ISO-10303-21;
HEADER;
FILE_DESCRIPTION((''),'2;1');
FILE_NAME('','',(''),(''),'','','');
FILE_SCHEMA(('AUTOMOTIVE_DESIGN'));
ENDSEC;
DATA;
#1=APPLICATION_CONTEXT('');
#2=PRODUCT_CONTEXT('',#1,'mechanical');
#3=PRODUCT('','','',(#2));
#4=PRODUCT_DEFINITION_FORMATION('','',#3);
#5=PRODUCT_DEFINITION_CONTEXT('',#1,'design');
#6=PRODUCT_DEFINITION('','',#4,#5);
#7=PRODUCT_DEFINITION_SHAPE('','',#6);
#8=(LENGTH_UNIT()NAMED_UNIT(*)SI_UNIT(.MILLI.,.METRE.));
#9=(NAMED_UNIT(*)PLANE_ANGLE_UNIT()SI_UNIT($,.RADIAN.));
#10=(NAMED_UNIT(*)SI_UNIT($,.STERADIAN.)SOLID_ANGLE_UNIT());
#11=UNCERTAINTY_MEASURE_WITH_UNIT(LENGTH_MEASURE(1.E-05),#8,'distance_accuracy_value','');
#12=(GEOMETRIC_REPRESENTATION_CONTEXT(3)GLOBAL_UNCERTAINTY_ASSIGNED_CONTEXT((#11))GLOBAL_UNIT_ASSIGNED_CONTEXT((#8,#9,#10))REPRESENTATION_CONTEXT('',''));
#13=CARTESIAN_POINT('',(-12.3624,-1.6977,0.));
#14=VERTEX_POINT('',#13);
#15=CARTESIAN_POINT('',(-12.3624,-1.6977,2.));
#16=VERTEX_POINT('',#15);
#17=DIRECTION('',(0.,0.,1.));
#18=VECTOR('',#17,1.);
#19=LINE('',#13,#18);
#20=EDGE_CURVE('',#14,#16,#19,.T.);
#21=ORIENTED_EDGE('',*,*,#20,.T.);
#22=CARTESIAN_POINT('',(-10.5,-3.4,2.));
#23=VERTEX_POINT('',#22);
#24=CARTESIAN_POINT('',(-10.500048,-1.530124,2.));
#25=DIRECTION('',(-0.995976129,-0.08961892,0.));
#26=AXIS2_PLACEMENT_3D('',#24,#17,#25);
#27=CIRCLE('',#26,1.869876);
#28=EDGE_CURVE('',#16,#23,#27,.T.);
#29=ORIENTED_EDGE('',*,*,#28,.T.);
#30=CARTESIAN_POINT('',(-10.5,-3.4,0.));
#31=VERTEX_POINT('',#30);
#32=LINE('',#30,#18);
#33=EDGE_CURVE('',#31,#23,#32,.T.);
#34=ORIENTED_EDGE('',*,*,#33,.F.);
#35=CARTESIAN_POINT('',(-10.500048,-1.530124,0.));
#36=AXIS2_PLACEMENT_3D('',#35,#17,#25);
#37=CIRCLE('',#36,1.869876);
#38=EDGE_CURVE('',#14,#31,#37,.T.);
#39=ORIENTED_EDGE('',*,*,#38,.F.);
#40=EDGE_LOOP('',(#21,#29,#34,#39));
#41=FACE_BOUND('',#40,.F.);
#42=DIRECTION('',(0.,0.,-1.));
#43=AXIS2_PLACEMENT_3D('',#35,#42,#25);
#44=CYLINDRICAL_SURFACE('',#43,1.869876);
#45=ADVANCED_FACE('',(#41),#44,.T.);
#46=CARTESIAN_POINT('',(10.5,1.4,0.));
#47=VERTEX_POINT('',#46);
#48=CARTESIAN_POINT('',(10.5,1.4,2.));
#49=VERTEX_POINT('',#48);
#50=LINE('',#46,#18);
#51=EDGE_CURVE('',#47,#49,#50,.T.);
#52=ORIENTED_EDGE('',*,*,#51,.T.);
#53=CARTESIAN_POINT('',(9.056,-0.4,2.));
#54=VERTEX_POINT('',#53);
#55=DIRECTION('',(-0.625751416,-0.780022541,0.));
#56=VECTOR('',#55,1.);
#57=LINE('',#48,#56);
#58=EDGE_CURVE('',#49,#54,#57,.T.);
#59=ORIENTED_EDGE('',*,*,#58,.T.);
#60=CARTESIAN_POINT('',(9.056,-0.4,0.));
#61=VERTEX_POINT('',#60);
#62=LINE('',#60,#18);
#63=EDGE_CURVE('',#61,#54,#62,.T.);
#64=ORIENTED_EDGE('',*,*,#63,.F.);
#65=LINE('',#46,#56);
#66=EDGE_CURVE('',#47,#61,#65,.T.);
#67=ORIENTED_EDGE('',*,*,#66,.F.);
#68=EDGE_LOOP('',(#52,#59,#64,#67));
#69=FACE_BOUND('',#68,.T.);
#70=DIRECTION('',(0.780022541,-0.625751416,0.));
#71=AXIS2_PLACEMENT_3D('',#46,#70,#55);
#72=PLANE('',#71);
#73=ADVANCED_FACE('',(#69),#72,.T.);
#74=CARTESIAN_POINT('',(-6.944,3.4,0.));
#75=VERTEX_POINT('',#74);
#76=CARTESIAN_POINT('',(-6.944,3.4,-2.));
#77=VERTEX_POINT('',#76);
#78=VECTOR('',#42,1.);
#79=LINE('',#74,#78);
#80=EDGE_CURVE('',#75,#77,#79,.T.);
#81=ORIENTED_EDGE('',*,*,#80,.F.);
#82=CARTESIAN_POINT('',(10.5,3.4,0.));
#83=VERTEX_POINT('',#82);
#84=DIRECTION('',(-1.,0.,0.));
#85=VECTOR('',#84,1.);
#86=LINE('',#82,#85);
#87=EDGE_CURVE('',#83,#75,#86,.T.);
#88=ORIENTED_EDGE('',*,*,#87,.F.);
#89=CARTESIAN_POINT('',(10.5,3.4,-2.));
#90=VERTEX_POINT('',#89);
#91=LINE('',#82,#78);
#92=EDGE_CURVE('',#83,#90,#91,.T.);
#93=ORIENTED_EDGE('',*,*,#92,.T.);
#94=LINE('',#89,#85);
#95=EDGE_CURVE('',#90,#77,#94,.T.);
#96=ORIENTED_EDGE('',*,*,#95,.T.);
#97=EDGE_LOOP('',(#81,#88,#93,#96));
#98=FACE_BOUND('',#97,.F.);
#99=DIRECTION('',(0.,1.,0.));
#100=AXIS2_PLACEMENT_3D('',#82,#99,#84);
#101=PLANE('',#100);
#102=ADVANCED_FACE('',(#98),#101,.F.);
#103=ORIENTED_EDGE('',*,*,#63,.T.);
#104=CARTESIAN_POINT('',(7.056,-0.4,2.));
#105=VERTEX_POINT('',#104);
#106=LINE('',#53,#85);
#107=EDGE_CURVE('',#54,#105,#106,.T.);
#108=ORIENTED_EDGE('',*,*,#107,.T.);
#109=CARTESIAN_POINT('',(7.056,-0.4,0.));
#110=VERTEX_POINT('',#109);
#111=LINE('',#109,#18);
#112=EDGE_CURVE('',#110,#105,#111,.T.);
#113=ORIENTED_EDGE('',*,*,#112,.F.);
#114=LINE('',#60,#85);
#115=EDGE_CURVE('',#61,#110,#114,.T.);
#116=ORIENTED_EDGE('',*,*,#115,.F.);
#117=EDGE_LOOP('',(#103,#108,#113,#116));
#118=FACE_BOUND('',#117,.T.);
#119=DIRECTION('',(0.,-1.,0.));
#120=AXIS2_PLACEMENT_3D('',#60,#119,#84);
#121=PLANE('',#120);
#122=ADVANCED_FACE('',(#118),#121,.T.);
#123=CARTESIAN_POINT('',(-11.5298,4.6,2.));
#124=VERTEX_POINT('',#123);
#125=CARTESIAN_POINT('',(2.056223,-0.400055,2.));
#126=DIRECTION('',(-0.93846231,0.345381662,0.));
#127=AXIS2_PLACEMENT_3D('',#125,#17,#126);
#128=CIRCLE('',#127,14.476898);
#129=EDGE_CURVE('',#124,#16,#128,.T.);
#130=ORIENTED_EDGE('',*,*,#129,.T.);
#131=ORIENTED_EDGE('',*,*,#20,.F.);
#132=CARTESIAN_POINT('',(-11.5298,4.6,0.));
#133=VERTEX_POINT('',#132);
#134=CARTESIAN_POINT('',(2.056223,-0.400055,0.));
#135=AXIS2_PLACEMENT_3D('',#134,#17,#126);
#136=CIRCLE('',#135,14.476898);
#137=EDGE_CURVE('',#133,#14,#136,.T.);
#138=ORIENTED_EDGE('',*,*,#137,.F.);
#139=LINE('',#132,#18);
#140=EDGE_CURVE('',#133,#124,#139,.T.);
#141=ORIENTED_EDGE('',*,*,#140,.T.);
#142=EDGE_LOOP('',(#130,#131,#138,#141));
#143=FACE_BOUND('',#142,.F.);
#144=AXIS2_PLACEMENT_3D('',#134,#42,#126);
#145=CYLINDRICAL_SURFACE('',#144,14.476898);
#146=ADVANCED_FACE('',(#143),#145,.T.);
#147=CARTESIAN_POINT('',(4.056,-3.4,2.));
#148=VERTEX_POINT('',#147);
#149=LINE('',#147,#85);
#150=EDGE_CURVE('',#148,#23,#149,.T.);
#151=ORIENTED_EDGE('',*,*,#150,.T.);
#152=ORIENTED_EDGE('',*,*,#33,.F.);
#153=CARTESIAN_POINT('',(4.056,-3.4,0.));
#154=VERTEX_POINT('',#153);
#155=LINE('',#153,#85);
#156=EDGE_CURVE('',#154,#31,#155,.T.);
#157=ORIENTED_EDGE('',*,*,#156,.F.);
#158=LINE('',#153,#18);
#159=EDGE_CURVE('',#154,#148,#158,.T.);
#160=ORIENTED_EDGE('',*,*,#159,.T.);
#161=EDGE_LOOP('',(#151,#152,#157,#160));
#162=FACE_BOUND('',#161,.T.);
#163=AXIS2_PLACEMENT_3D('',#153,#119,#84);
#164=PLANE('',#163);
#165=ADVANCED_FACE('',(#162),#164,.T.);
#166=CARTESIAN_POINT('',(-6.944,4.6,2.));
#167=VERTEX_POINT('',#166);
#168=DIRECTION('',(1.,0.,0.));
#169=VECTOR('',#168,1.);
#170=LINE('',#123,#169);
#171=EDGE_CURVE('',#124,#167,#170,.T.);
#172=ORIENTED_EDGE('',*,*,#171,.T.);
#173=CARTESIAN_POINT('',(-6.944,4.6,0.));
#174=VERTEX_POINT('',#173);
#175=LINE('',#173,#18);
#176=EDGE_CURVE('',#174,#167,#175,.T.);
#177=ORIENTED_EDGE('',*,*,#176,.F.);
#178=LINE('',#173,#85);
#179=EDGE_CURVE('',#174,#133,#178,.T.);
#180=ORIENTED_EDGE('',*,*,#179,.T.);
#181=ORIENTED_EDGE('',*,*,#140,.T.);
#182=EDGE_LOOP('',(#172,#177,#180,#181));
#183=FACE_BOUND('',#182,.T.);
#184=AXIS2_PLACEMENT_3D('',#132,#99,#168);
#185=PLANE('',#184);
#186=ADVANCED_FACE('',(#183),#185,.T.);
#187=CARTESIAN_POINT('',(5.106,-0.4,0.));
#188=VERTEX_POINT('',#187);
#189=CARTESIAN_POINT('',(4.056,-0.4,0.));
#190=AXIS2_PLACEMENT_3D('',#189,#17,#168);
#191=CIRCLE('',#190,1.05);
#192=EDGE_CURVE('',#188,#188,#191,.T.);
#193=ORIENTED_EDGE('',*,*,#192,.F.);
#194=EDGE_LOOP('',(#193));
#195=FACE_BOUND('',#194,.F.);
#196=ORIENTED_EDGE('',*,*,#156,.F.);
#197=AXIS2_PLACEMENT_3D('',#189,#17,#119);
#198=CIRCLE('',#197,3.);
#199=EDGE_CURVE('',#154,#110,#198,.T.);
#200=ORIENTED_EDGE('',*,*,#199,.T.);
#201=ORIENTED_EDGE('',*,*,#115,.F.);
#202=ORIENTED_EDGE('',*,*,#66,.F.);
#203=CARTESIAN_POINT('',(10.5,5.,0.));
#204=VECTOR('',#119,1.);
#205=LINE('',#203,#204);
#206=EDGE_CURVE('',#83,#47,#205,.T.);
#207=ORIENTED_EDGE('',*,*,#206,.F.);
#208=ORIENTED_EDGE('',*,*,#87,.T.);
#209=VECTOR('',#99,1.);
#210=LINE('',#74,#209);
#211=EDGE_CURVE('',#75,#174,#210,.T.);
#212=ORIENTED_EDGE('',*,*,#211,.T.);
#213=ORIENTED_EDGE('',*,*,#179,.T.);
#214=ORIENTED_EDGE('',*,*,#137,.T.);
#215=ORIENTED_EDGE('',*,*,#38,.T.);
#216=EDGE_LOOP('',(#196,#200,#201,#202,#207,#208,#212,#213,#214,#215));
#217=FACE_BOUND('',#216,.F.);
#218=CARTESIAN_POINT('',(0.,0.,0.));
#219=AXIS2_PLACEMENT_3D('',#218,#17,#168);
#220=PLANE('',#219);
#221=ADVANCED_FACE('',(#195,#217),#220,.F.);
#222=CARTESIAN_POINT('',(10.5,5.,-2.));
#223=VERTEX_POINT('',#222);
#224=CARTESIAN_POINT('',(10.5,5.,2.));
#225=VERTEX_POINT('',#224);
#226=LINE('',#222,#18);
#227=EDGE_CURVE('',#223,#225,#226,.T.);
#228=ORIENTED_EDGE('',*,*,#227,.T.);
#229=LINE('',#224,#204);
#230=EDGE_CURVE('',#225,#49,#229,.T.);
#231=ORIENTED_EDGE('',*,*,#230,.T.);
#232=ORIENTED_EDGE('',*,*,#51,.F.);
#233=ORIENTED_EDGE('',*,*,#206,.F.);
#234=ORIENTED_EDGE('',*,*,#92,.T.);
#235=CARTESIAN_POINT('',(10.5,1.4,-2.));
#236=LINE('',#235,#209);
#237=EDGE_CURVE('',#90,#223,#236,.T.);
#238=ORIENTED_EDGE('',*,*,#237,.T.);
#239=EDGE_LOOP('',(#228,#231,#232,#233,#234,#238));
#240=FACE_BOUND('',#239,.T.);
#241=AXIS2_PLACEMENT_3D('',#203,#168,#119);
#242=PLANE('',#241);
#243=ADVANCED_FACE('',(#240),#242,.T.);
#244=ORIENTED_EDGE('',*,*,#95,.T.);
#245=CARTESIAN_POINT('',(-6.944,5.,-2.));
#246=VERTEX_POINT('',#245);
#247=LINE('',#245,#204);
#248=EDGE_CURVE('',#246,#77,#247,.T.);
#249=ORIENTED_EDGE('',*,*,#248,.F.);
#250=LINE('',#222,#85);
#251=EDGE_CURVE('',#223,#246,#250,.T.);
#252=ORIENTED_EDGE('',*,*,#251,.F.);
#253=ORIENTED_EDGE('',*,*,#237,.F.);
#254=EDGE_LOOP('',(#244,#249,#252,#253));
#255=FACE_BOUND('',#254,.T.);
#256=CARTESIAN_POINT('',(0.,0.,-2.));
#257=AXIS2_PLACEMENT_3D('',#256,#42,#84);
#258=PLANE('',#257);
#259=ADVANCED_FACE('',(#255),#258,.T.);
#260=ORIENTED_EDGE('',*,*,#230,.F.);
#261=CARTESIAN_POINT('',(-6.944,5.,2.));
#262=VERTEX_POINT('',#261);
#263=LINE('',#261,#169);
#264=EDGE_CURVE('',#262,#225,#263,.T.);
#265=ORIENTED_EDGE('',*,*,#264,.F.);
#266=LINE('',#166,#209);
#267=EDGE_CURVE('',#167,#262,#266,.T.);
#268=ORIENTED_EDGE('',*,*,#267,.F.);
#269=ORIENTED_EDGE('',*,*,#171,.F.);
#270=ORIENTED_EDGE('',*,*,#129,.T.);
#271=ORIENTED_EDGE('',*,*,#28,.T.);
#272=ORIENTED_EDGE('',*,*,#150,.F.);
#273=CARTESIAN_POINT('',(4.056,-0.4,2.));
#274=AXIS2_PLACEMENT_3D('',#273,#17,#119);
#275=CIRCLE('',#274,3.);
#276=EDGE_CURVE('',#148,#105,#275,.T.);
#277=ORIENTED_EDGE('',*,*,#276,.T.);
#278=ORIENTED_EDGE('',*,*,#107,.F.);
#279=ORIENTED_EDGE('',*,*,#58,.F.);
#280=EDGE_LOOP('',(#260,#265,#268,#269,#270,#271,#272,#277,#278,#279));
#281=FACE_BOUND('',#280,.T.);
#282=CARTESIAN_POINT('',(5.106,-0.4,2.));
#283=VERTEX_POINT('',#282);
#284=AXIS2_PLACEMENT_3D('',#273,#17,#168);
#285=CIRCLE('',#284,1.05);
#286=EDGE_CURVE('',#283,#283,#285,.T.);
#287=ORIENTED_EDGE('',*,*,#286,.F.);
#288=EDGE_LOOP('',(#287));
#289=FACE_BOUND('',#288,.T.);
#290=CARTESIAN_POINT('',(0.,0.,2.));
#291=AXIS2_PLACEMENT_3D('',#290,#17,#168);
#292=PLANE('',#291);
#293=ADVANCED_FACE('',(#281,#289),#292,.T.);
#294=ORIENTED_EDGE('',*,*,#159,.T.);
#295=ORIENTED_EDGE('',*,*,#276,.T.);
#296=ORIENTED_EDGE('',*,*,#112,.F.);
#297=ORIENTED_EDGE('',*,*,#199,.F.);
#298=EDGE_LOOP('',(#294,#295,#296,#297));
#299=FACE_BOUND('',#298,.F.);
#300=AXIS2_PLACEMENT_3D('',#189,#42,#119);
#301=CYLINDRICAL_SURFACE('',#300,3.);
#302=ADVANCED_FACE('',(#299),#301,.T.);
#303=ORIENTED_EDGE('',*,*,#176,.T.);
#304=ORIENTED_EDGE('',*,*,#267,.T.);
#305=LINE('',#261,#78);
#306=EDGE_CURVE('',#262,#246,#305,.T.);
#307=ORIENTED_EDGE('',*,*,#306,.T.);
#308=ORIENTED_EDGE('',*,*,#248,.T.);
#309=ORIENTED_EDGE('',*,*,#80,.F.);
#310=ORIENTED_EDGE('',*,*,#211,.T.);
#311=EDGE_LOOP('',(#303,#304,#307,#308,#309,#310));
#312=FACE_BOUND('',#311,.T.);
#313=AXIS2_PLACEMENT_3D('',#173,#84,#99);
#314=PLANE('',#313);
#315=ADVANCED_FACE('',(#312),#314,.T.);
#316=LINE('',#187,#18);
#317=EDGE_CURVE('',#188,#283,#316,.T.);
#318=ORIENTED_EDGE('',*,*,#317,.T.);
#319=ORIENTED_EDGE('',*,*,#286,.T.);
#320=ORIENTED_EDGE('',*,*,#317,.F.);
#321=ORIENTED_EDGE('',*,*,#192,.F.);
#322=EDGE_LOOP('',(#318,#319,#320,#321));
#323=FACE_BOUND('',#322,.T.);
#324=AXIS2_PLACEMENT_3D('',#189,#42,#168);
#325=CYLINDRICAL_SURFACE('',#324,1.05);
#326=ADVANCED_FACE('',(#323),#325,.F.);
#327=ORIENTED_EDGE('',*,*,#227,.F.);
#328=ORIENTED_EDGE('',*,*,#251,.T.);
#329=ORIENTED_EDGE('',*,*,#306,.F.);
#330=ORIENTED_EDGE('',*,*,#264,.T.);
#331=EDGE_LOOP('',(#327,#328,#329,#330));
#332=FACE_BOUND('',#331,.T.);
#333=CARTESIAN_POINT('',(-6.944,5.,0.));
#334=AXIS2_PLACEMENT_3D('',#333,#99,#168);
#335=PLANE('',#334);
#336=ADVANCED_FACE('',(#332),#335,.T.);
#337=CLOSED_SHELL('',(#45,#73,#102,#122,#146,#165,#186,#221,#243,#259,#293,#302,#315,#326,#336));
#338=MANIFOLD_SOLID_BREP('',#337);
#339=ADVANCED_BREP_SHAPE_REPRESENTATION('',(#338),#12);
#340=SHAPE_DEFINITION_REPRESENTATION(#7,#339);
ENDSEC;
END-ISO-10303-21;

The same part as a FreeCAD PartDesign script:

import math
import FreeCAD as App
import Part
import Sketcher
from FreeCAD import Vector

doc = App.newDocument("Part")
params = doc.addObject("Spreadsheet::Sheet", "Params")
for row, (alias, value) in enumerate([
    ("sketch1_width", "2 mm"),
    ("sketch1_radius", "3 mm"),
    ("sketch1_diameter", "2.1 mm"),
    ("sketch1_radius2", "1.87 mm"),
    ("sketch1_height", "3.6 mm"),
    ("pad1_length", "2 mm"),
    ("sketch2_height", "1.6 mm"),
    ("pad2_length", "2 mm"),
], start=1):
    params.set(f"A{row}", alias)
    params.set(f"B{row}", "=" + value)
    params.setAlias(f"B{row}", alias)

body = doc.addObject("PartDesign::Body", "Body")

sketch1 = body.newObject("Sketcher::SketchObject", "Sketch")
sketch1.AttachmentSupport = (doc.getObject("XY_Plane"), [""])
sketch1.MapMode = "FlatFace"
sketch1.addGeometry([
    Part.LineSegment(Vector(-6.94, 4.6, 0), Vector(-11.53, 4.6, 0)),
    Part.ArcOfCircle(Part.Circle(Vector(2.06, -0.4, 0), Vector(0, 0, 1), 14.48), math.radians(160), math.radians(185)),
    Part.ArcOfCircle(Part.Circle(Vector(-10.5, -1.53, 0), Vector(0, 0, 1), 1.87), math.radians(-175), math.radians(-90)),
    Part.LineSegment(Vector(-10.5, -3.4, 0), Vector(4.06, -3.4, 0)),
    Part.ArcOfCircle(Part.Circle(Vector(4.06, -0.4, 0), Vector(0, 0, 1), 3), math.radians(-90), math.radians(0)),
    Part.LineSegment(Vector(7.06, -0.4, 0), Vector(9.06, -0.4, 0)),
    Part.LineSegment(Vector(9.06, -0.4, 0), Vector(10.5, 1.4, 0)),
    Part.LineSegment(Vector(10.5, 1.4, 0), Vector(10.5, 5, 0)),
    Part.LineSegment(Vector(10.5, 5, 0), Vector(-6.94, 5, 0)),
    Part.LineSegment(Vector(-6.94, 5, 0), Vector(-6.94, 4.6, 0)),
    Part.Circle(Vector(4.06, -0.4, 0), Vector(0, 0, 1), 1.05),
], False)
sketch1.addConstraint([
    Sketcher.Constraint("Coincident", 0, 2, 1, 1),
    Sketcher.Constraint("Tangent", 1, 2, 2, 1),
    Sketcher.Constraint("Tangent", 2, 2, 3, 1),
    Sketcher.Constraint("Tangent", 3, 2, 4, 1),
    Sketcher.Constraint("Coincident", 4, 2, 5, 1),
    Sketcher.Constraint("Coincident", 5, 2, 6, 1),
    Sketcher.Constraint("Coincident", 6, 2, 7, 1),
    Sketcher.Constraint("Coincident", 7, 2, 8, 1),
    Sketcher.Constraint("Coincident", 8, 2, 9, 1),
    Sketcher.Constraint("Coincident", 9, 2, 0, 1),
    Sketcher.Constraint("Horizontal", 0),
    Sketcher.Constraint("Horizontal", 3),
    Sketcher.Constraint("Horizontal", 5),
    Sketcher.Constraint("Vertical", 7),
    Sketcher.Constraint("Horizontal", 8),
    Sketcher.Constraint("Vertical", 9),
    Sketcher.Constraint("Coincident", 10, 3, 4, 3),
    Sketcher.Constraint("Horizontal", 1, 3, 4, 3),
    Sketcher.Constraint("Horizontal", 10, 3, 4, 2),
    Sketcher.Constraint("DistanceX", 5, 1, 5, 2, 2.0),
    Sketcher.Constraint("Radius", 4, 3.0),
    Sketcher.Constraint("DistanceX", 1, 3, 4, 3, 2.0),
    Sketcher.Constraint("Diameter", 10, 2.1),
    Sketcher.Constraint("Radius", 2, 1.87),
    Sketcher.Constraint("DistanceY", 7, 1, 7, 2, 3.6),
    Sketcher.Constraint("DistanceY", 9, 2, 9, 1, 0.4),
    Sketcher.Constraint("DistanceY", -1, 1, 7, 2, 5.0),
    Sketcher.Constraint("DistanceY", 1, 3, 0, 2, 5.0),
    Sketcher.Constraint("DistanceX", 8, 2, 1, 3, 9.0),
    Sketcher.Constraint("DistanceX", 2, 3, -1, 1, 10.5),
    Sketcher.Constraint("DistanceX", -1, 1, 6, 2, 10.5),
    Sketcher.Constraint("Radius", 1, 14.4767),
])
sketch1.setExpression("Constraints[19]", "Params.sketch1_width")
sketch1.setExpression("Constraints[20]", "Params.sketch1_radius")
sketch1.setExpression("Constraints[22]", "Params.sketch1_diameter")
sketch1.setExpression("Constraints[23]", "Params.sketch1_radius2")
sketch1.setExpression("Constraints[24]", "Params.sketch1_height")
pad1 = body.newObject("PartDesign::Pad", "Pad")
pad1.Profile = sketch1
pad1.setExpression("Length", "Params.pad1_length")

sketch2 = body.newObject("Sketcher::SketchObject", "Sketch001")
sketch2.AttachmentSupport = (doc.getObject("XY_Plane"), [""])
sketch2.MapMode = "FlatFace"
sketch2.addGeometry([
    Part.LineSegment(Vector(-6.9, 3.4, 0), Vector(-6.9, 5, 0)),
    Part.LineSegment(Vector(-6.9, 5, 0), Vector(10.5, 5, 0)),
    Part.LineSegment(Vector(10.5, 5, 0), Vector(10.5, 3.4, 0)),
    Part.LineSegment(Vector(10.5, 3.4, 0), Vector(-6.9, 3.4, 0)),
], False)
sketch2.addConstraint([
    Sketcher.Constraint("Coincident", 0, 2, 1, 1),
    Sketcher.Constraint("Coincident", 1, 2, 2, 1),
    Sketcher.Constraint("Coincident", 2, 2, 3, 1),
    Sketcher.Constraint("Coincident", 3, 2, 0, 1),
    Sketcher.Constraint("Vertical", 0),
    Sketcher.Constraint("Horizontal", 1),
    Sketcher.Constraint("Vertical", 2),
    Sketcher.Constraint("Horizontal", 3),
    Sketcher.Constraint("DistanceY", 0, 1, 0, 2, 1.6),
    Sketcher.Constraint("DistanceY", -1, 1, 0, 2, 5.0),
    Sketcher.Constraint("DistanceX", -1, 1, 1, 2, 10.5),
    Sketcher.Constraint("DistanceX", 1, 1, 1, 2, 17.444),
])
sketch2.setExpression("Constraints[8]", "Params.sketch2_height")
pad2 = body.newObject("PartDesign::Pad", "Pad001")
pad2.Profile = sketch2
pad2.setExpression("Length", "Params.pad2_length")
pad2.Reversed = True

doc.recompute()
